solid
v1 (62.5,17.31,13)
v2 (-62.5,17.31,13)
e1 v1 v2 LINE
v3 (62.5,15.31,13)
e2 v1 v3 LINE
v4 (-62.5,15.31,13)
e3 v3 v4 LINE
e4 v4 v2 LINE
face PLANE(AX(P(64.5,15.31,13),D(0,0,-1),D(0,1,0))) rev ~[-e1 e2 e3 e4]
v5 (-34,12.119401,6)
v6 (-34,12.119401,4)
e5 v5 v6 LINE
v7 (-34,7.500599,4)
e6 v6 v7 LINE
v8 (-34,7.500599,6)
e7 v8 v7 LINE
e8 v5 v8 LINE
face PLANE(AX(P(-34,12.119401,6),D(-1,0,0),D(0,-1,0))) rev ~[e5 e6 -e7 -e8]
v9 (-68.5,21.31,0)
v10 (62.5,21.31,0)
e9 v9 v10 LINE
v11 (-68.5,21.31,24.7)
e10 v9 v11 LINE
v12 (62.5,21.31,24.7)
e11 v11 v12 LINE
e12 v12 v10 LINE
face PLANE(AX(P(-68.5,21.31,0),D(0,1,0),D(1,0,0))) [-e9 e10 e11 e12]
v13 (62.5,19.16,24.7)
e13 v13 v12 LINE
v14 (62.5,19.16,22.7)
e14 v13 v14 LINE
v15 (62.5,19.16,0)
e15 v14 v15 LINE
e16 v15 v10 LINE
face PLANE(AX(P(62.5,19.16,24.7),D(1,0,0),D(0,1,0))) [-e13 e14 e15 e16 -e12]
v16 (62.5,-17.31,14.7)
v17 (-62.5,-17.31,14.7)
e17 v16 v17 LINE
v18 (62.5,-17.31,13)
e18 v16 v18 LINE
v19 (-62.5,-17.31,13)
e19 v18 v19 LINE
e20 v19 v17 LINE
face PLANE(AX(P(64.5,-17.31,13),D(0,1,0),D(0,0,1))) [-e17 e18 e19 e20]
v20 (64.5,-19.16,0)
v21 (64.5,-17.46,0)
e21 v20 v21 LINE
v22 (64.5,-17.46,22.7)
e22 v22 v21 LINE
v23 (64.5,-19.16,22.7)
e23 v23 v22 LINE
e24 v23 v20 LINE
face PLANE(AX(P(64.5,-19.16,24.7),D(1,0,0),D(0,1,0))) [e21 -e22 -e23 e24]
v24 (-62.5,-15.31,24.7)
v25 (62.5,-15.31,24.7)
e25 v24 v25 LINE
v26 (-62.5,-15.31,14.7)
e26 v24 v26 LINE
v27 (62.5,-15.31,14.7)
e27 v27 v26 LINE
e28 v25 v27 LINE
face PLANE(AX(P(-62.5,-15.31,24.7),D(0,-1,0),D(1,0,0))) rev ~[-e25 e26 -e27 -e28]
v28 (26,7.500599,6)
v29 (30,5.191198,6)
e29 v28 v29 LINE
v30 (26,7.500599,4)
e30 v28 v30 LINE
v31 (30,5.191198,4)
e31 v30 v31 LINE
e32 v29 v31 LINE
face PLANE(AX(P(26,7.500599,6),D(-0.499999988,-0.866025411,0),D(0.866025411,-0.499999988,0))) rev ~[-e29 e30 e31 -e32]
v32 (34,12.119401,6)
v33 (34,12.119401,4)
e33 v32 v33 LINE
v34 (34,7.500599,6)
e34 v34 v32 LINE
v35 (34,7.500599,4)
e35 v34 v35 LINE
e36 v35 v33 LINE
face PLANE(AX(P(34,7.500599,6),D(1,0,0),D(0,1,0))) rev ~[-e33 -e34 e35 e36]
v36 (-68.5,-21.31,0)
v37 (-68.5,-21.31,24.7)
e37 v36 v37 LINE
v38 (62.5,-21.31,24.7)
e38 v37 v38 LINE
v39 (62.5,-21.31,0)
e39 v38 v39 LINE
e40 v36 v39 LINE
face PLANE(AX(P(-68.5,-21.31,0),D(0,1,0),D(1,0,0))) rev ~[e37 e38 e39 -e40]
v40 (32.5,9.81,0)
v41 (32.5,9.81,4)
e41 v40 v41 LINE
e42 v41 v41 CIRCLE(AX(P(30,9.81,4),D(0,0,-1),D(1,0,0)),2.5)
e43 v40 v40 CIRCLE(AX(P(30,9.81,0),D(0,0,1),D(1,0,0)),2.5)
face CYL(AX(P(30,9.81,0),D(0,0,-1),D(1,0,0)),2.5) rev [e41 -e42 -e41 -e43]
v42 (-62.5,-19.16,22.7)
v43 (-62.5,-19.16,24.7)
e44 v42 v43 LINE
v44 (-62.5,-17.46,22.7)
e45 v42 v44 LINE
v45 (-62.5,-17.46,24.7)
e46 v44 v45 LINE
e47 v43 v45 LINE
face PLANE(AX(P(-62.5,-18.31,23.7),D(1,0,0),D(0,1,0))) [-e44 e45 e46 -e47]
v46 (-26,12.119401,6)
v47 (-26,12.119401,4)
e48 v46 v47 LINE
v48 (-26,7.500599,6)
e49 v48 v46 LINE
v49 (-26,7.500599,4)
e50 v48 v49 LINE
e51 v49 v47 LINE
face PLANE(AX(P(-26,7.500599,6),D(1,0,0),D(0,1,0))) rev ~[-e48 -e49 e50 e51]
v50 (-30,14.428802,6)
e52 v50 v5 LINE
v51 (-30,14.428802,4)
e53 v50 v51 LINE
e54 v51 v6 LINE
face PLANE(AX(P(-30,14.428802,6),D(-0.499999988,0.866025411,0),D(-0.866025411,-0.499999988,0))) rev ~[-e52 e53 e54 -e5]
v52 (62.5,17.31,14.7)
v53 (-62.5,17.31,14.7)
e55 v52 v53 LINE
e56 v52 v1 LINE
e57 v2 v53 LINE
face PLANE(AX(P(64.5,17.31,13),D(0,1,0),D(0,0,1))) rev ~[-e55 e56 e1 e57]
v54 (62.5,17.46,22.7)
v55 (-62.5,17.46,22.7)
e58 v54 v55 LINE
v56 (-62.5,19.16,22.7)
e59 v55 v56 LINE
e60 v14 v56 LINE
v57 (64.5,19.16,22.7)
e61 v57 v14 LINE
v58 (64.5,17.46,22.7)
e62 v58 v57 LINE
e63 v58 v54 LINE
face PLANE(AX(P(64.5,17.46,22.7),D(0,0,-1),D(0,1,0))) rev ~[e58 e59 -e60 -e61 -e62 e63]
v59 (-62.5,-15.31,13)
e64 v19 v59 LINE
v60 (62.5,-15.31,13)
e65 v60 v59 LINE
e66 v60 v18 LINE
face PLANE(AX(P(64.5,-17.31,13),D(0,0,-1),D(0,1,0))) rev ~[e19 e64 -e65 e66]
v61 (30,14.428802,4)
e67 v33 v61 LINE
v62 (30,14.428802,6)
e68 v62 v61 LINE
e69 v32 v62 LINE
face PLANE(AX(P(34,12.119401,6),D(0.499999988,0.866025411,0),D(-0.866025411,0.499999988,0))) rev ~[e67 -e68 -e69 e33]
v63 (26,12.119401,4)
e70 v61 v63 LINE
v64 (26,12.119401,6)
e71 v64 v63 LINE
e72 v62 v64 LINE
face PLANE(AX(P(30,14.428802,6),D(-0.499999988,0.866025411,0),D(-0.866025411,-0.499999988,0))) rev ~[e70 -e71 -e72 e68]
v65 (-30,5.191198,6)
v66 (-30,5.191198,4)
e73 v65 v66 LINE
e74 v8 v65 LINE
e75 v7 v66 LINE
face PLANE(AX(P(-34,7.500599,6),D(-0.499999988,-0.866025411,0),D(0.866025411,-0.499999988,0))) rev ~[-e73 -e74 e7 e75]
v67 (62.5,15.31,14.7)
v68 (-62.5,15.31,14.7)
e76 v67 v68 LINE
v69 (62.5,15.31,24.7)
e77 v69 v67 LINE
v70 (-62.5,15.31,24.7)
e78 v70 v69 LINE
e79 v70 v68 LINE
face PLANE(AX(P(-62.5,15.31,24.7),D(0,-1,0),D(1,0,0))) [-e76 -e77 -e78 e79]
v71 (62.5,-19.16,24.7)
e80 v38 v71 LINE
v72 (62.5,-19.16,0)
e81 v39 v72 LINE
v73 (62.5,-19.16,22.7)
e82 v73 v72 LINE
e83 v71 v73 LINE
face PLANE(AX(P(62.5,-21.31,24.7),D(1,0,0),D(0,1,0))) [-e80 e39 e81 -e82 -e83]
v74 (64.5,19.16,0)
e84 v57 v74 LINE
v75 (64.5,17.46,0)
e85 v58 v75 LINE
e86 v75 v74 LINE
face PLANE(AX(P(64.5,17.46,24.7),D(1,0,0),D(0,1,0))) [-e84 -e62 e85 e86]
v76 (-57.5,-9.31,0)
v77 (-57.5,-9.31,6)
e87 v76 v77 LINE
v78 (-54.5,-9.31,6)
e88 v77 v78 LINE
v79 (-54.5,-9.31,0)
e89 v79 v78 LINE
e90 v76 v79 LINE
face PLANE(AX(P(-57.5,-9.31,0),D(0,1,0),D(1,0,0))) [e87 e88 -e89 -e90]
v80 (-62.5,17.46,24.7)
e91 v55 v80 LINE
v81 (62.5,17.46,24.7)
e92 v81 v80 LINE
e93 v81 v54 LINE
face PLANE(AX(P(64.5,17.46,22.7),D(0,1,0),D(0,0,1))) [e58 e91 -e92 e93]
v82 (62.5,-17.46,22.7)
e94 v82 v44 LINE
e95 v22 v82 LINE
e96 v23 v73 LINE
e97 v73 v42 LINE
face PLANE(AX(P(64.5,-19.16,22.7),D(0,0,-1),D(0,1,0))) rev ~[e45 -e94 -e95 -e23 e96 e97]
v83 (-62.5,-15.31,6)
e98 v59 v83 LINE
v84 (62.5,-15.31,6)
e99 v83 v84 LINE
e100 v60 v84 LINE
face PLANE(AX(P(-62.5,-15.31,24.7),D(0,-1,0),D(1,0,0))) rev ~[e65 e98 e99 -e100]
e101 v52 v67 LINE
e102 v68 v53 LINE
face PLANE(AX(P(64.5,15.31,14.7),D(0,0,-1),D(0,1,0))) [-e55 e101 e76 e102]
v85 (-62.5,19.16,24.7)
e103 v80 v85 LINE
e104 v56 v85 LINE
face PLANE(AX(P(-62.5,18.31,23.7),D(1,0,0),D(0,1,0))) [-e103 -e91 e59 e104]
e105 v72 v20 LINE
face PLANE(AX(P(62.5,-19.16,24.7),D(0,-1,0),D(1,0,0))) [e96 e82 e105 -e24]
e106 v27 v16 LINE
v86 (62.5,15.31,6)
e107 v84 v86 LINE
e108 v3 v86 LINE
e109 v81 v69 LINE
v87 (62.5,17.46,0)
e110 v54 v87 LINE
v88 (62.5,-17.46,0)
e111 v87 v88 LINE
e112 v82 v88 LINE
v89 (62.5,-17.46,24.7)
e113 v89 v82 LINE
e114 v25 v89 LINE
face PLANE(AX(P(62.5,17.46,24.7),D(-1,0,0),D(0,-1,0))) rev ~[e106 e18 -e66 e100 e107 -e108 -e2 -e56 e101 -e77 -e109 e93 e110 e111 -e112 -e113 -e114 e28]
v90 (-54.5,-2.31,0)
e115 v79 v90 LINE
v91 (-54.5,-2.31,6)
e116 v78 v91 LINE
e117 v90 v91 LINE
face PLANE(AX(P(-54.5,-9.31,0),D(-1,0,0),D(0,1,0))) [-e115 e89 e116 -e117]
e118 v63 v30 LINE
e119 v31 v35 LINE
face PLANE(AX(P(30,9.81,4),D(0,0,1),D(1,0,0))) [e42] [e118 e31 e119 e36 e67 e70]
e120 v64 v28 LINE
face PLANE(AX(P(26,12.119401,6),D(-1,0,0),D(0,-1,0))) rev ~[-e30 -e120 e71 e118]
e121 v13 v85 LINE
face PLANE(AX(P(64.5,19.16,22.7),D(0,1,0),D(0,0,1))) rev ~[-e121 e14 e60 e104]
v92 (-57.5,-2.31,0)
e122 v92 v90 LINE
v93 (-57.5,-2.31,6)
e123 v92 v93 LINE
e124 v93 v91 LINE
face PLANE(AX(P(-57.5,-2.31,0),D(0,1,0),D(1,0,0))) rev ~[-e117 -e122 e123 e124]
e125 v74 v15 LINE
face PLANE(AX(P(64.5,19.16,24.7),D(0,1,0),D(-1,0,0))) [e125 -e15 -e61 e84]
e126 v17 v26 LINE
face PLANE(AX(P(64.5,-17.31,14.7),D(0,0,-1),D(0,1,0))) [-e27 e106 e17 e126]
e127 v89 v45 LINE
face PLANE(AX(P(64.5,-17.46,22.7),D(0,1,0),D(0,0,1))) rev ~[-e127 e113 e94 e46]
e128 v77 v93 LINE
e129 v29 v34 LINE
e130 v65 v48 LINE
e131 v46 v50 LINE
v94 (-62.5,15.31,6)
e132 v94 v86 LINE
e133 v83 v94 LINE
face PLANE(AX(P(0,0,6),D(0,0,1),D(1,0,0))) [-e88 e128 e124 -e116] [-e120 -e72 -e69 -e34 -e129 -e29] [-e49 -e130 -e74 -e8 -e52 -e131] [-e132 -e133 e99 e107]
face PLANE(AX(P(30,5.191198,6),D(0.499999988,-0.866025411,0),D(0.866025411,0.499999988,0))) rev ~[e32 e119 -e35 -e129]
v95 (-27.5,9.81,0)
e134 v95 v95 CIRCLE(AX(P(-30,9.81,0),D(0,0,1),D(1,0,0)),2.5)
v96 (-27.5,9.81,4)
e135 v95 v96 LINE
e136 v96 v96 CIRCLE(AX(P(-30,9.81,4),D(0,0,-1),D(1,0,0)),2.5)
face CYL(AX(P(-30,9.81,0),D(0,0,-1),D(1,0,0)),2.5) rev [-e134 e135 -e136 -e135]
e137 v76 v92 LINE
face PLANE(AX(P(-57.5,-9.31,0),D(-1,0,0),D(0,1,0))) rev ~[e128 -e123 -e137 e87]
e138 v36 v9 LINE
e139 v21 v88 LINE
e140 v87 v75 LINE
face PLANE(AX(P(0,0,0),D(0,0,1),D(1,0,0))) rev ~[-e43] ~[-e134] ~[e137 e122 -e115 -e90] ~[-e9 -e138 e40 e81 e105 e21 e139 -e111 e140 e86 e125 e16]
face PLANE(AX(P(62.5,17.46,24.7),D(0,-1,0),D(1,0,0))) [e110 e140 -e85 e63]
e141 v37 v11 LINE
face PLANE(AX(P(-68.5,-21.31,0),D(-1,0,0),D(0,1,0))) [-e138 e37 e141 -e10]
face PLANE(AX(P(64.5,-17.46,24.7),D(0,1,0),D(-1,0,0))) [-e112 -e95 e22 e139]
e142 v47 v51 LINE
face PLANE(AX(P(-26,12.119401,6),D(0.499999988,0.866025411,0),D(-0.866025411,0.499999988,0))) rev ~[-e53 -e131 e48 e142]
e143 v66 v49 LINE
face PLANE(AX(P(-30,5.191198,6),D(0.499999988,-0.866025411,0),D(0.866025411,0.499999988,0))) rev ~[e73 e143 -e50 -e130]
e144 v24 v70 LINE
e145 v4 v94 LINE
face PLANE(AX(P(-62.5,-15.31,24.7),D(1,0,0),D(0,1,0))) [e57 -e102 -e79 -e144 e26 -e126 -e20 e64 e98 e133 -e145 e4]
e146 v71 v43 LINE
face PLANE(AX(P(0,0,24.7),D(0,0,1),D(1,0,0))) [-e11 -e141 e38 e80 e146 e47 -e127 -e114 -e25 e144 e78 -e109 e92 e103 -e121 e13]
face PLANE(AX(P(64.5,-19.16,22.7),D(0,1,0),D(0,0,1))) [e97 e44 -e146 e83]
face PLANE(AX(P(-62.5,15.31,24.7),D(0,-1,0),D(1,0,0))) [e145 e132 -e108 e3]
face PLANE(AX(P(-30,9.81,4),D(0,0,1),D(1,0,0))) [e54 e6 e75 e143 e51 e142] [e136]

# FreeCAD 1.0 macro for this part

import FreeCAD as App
import Part
import Sketcher

V = App.Vector
Q = App.Units.Quantity


def add_polygon(sketch, points):
    """Adds a closed chain of lines whose ends are joined by coincident constraints."""
    first, n = sketch.GeometryCount, len(points)
    for a, b in zip(points, points[1:] + points[:1]):
        sketch.addGeometry(Part.LineSegment(App.Vector(*a, 0), App.Vector(*b, 0)), False)
    for i in range(n):
        sketch.addConstraint(Sketcher.Constraint("Coincident", first + i, 2, first + (i + 1) % n, 1))

doc = App.newDocument("Part")
params = doc.addObject("Spreadsheet::Sheet", "Params")
for row, (alias, value) in enumerate([
    ("sketch1_diameter", "5 mm"),
    ("sketch1_width", "137 mm"),
    ("sketch1_width2", "3 mm"),
    ("sketch1_height", "7 mm"),
    ("sketch1_height2", "42.62 mm"),
    ("pad1_length", "24.7 mm"),
    ("sketch2_width", "125 mm"),
    ("sketch2_height", "30.62 mm"),
    ("pocket1_length", "18.7 mm"),
    ("pocket2_length", "2 mm"),
    ("sketch4_width", "6 mm"),
    ("sketch4_width2", "2 mm"),
    ("sketch4_height", "1.7 mm"),
    ("sketch4_height2", "2.15 mm"),
    ("sketch4_height3", "34.92 mm"),
    ("pocket3_length", "24.7 mm"),
    ("sketch5_width", "2 mm"),
    ("sketch5_width2", "1.7 mm"),
    ("pocket4_length", "127 mm"),
], start=1):
    params.set(f"A{row}", alias)
    params.set(f"B{row}", "=" + value)
    params.setAlias(f"B{row}", alias)

body = doc.addObject("PartDesign::Body", "Body")

sketch1 = doc.addObject("Sketcher::SketchObject", "Sketch")
body.addObject(sketch1)
sketch1.AttachmentSupport = (doc.XY_Plane, [""])
sketch1.MapMode = "FlatFace"
add_polygon(sketch1, [(-68.5, 21.31), (-68.5, -21.31), (68.5, -21.31), (68.5, 21.31)])
add_polygon(sketch1, [(-54.5, -9.31), (-57.5, -9.31), (-57.5, -2.31), (-54.5, -2.31)])
sketch1.addGeometry(Part.Circle(V(-30, 9.81, 0), V(0, 0, 1), 2.5), False)
sketch1.addGeometry(Part.Circle(V(30, 9.81, 0), V(0, 0, 1), 2.5), False)
sketch1.addConstraint([
    Sketcher.Constraint("Vertical", 0),
    Sketcher.Constraint("Horizontal", 1),
    Sketcher.Constraint("Vertical", 2),
    Sketcher.Constraint("Horizontal", 3),
    Sketcher.Constraint("Horizontal", 4),
    Sketcher.Constraint("Vertical", 5),
    Sketcher.Constraint("Horizontal", 6),
    Sketcher.Constraint("Vertical", 7),
    Sketcher.Constraint("Equal", 8, 9),
    Sketcher.Constraint("Symmetric", 0, 2, 2, 2, -1, 1),
    Sketcher.Constraint("Symmetric", 8, 3, 9, 3, -2),
    Sketcher.Constraint("Diameter", 8, Q("5 mm")),
    Sketcher.Constraint("DistanceX", 1, 1, 1, 2, Q("137 mm")),
    Sketcher.Constraint("DistanceX", 4, 2, 4, 1, Q("3 mm")),
    Sketcher.Constraint("DistanceY", 5, 1, 5, 2, Q("7 mm")),
    Sketcher.Constraint("DistanceX", 8, 3, -1, 1, Q("30 mm")),
    Sketcher.Constraint("DistanceX", 0, 2, 4, 2, Q("11 mm")),
    Sketcher.Constraint("DistanceY", 0, 2, 4, 2, Q("12 mm")),
    Sketcher.Constraint("DistanceY", 0, 2, 0, 1, Q("42.62 mm")),
    Sketcher.Constraint("DistanceY", 9, 3, 2, 2, Q("11.5 mm")),
])
sketch1.setExpression("Constraints[19]", "Params.sketch1_diameter")
sketch1.setExpression("Constraints[20]", "Params.sketch1_width")
sketch1.setExpression("Constraints[21]", "Params.sketch1_width2")
sketch1.setExpression("Constraints[22]", "Params.sketch1_height")
sketch1.setExpression("Constraints[26]", "Params.sketch1_height2")
pad1 = doc.addObject("PartDesign::Pad", "Pad")
body.addObject(pad1)
pad1.Profile = sketch1
pad1.setExpression("Length", "Params.pad1_length")

sketch2 = doc.addObject("Sketcher::SketchObject", "Sketch001")
body.addObject(sketch2)
sketch2.AttachmentSupport = (doc.XY_Plane, [""])
sketch2.MapMode = "FlatFace"
sketch2.AttachmentOffset = App.Placement(V(0, 0, 24.7), App.Rotation())
add_polygon(sketch2, [(-62.5, 15.31), (-62.5, -15.31), (62.5, -15.31), (62.5, 15.31)])
sketch2.addConstraint([
    Sketcher.Constraint("Vertical", 0),
    Sketcher.Constraint("Horizontal", 1),
    Sketcher.Constraint("Vertical", 2),
    Sketcher.Constraint("Horizontal", 3),
    Sketcher.Constraint("Symmetric", 0, 2, 2, 2, -1, 1),
    Sketcher.Constraint("DistanceX", 1, 1, 1, 2, Q("125 mm")),
    Sketcher.Constraint("DistanceY", 0, 2, 0, 1, Q("30.62 mm")),
])
sketch2.setExpression("Constraints[9]", "Params.sketch2_width")
sketch2.setExpression("Constraints[10]", "Params.sketch2_height")
pocket1 = doc.addObject("PartDesign::Pocket", "Pocket")
body.addObject(pocket1)
pocket1.Profile = sketch2
pocket1.setExpression("Length", "Params.pocket1_length")

sketch3 = doc.addObject("Sketcher::SketchObject", "Sketch002")
body.addObject(sketch3)
sketch3.AttachmentSupport = (doc.XY_Plane, [""])
sketch3.MapMode = "FlatFace"
sketch3.AttachmentOffset = App.Placement(V(0, 0, 6), App.Rotation())
add_polygon(sketch3, [(-26, 7.500599), (-26, 12.119401), (-30, 14.428802), (-34, 12.119401), (-34, 7.500599), (-30, 5.191198)])
add_polygon(sketch3, [(34, 7.500599), (34, 12.119401), (30, 14.428802), (26, 12.119401), (26, 7.500599), (30, 5.191198)])
sketch3.addConstraint([
    Sketcher.Constraint("Vertical", 0),
    Sketcher.Constraint("Vertical", 3),
    Sketcher.Constraint("Vertical", 6),
    Sketcher.Constraint("Vertical", 9),
    Sketcher.Constraint("Symmetric", 2, 2, 6, 2, -2),
    Sketcher.Constraint("Symmetric", 1, 2, 7, 2, -2),
    Sketcher.Constraint("Symmetric", 0, 2, 8, 2, -2),
    Sketcher.Constraint("Symmetric", 4, 2, 10, 2, -2),
    Sketcher.Constraint("Parallel", 1, 4),
    Sketcher.Constraint("Parallel", 2, 5),
    Sketcher.Constraint("Parallel", 4, 7),
    Sketcher.Constraint("Parallel", 7, 10),
    Sketcher.Constraint("Parallel", 8, 11),
    Sketcher.Constraint("Horizontal", 0, 2, 2, 2),
    Sketcher.Constraint("Horizontal", 3, 2, 5, 2),
    Sketcher.Constraint("Angle", 1, Q("150.000001 deg")),
    Sketcher.Constraint("DistanceX", 0, 2, -1, 1, Q("26 mm")),
    Sketcher.Constraint("DistanceX", 1, 2, -1, 1, Q("30 mm")),
    Sketcher.Constraint("DistanceY", 0, 1, 0, 2, Q("4.618802 mm")),
    Sketcher.Constraint("DistanceY", -1, 1, 0, 2, Q("12.119401 mm")),
])
pocket2 = doc.addObject("PartDesign::Pocket", "Pocket001")
body.addObject(pocket2)
pocket2.Profile = sketch3
pocket2.setExpression("Length", "Params.pocket2_length")

sketch4 = doc.addObject("Sketcher::SketchObject", "Sketch003")
body.addObject(sketch4)
sketch4.AttachmentSupport = (doc.XY_Plane, [""])
sketch4.MapMode = "FlatFace"
sketch4.AttachmentOffset = App.Placement(V(0, 0, 24.7), App.Rotation())
add_polygon(sketch4, [(68.5, 21.31), (62.5, 21.31), (62.5, 19.16), (64.5, 19.16), (64.5, 17.46), (62.5, 17.46), (62.5, -17.46), (64.5, -17.46), (64.5, -19.16), (62.5, -19.16), (62.5, -21.31), (68.5, -21.31)])
sketch4.addConstraint([
    Sketcher.Constraint("Horizontal", 0),
    Sketcher.Constraint("Vertical", 1),
    Sketcher.Constraint("Horizontal", 2),
    Sketcher.Constraint("Vertical", 3),
    Sketcher.Constraint("Horizontal", 4),
    Sketcher.Constraint("Vertical", 5),
    Sketcher.Constraint("Horizontal", 6),
    Sketcher.Constraint("Vertical", 7),
    Sketcher.Constraint("Horizontal", 8),
    Sketcher.Constraint("Vertical", 9),
    Sketcher.Constraint("Horizontal", 10),
    Sketcher.Constraint("Vertical", 11),
    Sketcher.Constraint("Symmetric", 3, 2, 6, 2, -1),
    Sketcher.Constraint("Symmetric", 1, 2, 8, 2, -1),
    Sketcher.Constraint("Vertical", 1, 2, 4, 2),
    Sketcher.Constraint("Equal", 1, 9),
    Sketcher.Constraint("DistanceX", 0, 2, 0, 1, Q("6 mm")),
    Sketcher.Constraint("DistanceX", 2, 1, 2, 2, Q("2 mm")),
    Sketcher.Constraint("DistanceY", 3, 2, 3, 1, Q("1.7 mm")),
    Sketcher.Constraint("DistanceY", 1, 2, 1, 1, Q("2.15 mm")),
    Sketcher.Constraint("DistanceY", 5, 2, 5, 1, Q("34.92 mm")),
    Sketcher.Constraint("DistanceX", -1, 1, 0, 2, Q("62.5 mm")),
])
sketch4.setExpression("Constraints[28]", "Params.sketch4_width")
sketch4.setExpression("Constraints[29]", "Params.sketch4_width2")
sketch4.setExpression("Constraints[30]", "Params.sketch4_height")
sketch4.setExpression("Constraints[31]", "Params.sketch4_height2")
sketch4.setExpression("Constraints[32]", "Params.sketch4_height3")
pocket3 = doc.addObject("PartDesign::Pocket", "Pocket002")
body.addObject(pocket3)
pocket3.Profile = sketch4
pocket3.setExpression("Length", "Params.pocket3_length")

sketch5 = doc.addObject("Sketcher::SketchObject", "Sketch004")
body.addObject(sketch5)
sketch5.AttachmentSupport = (doc.YZ_Plane, [""])
sketch5.MapMode = "FlatFace"
sketch5.AttachmentOffset = App.Placement(V(0, 0, 64.5), App.Rotation())
add_polygon(sketch5, [(-19.16, 24.7), (-19.16, 22.7), (-17.46, 22.7), (-17.46, 24.7)])
add_polygon(sketch5, [(17.46, 24.7), (17.46, 22.7), (19.16, 22.7), (19.16, 24.7)])
add_polygon(sketch5, [(-17.31, 14.7), (-17.31, 13), (-15.31, 13), (-15.31, 14.7)])
add_polygon(sketch5, [(15.31, 14.7), (15.31, 13), (17.31, 13), (17.31, 14.7)])
sketch5.addConstraint([
    Sketcher.Constraint("Vertical", 0),
    Sketcher.Constraint("Horizontal", 1),
    Sketcher.Constraint("Vertical", 2),
    Sketcher.Constraint("Horizontal", 3),
    Sketcher.Constraint("Vertical", 4),
    Sketcher.Constraint("Horizontal", 5),
    Sketcher.Constraint("Vertical", 6),
    Sketcher.Constraint("Horizontal", 7),
    Sketcher.Constraint("Vertical", 8),
    Sketcher.Constraint("Horizontal", 9),
    Sketcher.Constraint("Vertical", 10),
    Sketcher.Constraint("Horizontal", 11),
    Sketcher.Constraint("Vertical", 12),
    Sketcher.Constraint("Horizontal", 13),
    Sketcher.Constraint("Vertical", 14),
    Sketcher.Constraint("Horizontal", 15),
    Sketcher.Constraint("Symmetric", 1, 2, 4, 2, -2),
    Sketcher.Constraint("Symmetric", 3, 2, 6, 2, -2),
    Sketcher.Constraint("Symmetric", 9, 2, 12, 2, -2),
    Sketcher.Constraint("Symmetric", 11, 2, 14, 2, -2),
    Sketcher.Constraint("Equal", 15, 0),
    Sketcher.Constraint("Equal", 7, 8),
    Sketcher.Constraint("DistanceX", 9, 1, 9, 2, Q("2 mm")),
    Sketcher.Constraint("DistanceX", 1, 1, 1, 2, Q("1.7 mm")),
    Sketcher.Constraint("DistanceY", -1, 1, 8, 2, Q("13 mm")),
    Sketcher.Constraint("DistanceY", 10, 2, 1, 2, Q("8 mm")),
    Sketcher.Constraint("DistanceX", 0, 2, -1, 1, Q("19.16 mm")),
    Sketcher.Constraint("DistanceX", 8, 2, -1, 1, Q("17.31 mm")),
])
sketch5.setExpression("Constraints[38]", "Params.sketch5_width")
sketch5.setExpression("Constraints[39]", "Params.sketch5_width2")
pocket4 = doc.addObject("PartDesign::Pocket", "Pocket003")
body.addObject(pocket4)
pocket4.Profile = sketch5
pocket4.setExpression("Length", "Params.pocket4_length")

doc.recompute()
